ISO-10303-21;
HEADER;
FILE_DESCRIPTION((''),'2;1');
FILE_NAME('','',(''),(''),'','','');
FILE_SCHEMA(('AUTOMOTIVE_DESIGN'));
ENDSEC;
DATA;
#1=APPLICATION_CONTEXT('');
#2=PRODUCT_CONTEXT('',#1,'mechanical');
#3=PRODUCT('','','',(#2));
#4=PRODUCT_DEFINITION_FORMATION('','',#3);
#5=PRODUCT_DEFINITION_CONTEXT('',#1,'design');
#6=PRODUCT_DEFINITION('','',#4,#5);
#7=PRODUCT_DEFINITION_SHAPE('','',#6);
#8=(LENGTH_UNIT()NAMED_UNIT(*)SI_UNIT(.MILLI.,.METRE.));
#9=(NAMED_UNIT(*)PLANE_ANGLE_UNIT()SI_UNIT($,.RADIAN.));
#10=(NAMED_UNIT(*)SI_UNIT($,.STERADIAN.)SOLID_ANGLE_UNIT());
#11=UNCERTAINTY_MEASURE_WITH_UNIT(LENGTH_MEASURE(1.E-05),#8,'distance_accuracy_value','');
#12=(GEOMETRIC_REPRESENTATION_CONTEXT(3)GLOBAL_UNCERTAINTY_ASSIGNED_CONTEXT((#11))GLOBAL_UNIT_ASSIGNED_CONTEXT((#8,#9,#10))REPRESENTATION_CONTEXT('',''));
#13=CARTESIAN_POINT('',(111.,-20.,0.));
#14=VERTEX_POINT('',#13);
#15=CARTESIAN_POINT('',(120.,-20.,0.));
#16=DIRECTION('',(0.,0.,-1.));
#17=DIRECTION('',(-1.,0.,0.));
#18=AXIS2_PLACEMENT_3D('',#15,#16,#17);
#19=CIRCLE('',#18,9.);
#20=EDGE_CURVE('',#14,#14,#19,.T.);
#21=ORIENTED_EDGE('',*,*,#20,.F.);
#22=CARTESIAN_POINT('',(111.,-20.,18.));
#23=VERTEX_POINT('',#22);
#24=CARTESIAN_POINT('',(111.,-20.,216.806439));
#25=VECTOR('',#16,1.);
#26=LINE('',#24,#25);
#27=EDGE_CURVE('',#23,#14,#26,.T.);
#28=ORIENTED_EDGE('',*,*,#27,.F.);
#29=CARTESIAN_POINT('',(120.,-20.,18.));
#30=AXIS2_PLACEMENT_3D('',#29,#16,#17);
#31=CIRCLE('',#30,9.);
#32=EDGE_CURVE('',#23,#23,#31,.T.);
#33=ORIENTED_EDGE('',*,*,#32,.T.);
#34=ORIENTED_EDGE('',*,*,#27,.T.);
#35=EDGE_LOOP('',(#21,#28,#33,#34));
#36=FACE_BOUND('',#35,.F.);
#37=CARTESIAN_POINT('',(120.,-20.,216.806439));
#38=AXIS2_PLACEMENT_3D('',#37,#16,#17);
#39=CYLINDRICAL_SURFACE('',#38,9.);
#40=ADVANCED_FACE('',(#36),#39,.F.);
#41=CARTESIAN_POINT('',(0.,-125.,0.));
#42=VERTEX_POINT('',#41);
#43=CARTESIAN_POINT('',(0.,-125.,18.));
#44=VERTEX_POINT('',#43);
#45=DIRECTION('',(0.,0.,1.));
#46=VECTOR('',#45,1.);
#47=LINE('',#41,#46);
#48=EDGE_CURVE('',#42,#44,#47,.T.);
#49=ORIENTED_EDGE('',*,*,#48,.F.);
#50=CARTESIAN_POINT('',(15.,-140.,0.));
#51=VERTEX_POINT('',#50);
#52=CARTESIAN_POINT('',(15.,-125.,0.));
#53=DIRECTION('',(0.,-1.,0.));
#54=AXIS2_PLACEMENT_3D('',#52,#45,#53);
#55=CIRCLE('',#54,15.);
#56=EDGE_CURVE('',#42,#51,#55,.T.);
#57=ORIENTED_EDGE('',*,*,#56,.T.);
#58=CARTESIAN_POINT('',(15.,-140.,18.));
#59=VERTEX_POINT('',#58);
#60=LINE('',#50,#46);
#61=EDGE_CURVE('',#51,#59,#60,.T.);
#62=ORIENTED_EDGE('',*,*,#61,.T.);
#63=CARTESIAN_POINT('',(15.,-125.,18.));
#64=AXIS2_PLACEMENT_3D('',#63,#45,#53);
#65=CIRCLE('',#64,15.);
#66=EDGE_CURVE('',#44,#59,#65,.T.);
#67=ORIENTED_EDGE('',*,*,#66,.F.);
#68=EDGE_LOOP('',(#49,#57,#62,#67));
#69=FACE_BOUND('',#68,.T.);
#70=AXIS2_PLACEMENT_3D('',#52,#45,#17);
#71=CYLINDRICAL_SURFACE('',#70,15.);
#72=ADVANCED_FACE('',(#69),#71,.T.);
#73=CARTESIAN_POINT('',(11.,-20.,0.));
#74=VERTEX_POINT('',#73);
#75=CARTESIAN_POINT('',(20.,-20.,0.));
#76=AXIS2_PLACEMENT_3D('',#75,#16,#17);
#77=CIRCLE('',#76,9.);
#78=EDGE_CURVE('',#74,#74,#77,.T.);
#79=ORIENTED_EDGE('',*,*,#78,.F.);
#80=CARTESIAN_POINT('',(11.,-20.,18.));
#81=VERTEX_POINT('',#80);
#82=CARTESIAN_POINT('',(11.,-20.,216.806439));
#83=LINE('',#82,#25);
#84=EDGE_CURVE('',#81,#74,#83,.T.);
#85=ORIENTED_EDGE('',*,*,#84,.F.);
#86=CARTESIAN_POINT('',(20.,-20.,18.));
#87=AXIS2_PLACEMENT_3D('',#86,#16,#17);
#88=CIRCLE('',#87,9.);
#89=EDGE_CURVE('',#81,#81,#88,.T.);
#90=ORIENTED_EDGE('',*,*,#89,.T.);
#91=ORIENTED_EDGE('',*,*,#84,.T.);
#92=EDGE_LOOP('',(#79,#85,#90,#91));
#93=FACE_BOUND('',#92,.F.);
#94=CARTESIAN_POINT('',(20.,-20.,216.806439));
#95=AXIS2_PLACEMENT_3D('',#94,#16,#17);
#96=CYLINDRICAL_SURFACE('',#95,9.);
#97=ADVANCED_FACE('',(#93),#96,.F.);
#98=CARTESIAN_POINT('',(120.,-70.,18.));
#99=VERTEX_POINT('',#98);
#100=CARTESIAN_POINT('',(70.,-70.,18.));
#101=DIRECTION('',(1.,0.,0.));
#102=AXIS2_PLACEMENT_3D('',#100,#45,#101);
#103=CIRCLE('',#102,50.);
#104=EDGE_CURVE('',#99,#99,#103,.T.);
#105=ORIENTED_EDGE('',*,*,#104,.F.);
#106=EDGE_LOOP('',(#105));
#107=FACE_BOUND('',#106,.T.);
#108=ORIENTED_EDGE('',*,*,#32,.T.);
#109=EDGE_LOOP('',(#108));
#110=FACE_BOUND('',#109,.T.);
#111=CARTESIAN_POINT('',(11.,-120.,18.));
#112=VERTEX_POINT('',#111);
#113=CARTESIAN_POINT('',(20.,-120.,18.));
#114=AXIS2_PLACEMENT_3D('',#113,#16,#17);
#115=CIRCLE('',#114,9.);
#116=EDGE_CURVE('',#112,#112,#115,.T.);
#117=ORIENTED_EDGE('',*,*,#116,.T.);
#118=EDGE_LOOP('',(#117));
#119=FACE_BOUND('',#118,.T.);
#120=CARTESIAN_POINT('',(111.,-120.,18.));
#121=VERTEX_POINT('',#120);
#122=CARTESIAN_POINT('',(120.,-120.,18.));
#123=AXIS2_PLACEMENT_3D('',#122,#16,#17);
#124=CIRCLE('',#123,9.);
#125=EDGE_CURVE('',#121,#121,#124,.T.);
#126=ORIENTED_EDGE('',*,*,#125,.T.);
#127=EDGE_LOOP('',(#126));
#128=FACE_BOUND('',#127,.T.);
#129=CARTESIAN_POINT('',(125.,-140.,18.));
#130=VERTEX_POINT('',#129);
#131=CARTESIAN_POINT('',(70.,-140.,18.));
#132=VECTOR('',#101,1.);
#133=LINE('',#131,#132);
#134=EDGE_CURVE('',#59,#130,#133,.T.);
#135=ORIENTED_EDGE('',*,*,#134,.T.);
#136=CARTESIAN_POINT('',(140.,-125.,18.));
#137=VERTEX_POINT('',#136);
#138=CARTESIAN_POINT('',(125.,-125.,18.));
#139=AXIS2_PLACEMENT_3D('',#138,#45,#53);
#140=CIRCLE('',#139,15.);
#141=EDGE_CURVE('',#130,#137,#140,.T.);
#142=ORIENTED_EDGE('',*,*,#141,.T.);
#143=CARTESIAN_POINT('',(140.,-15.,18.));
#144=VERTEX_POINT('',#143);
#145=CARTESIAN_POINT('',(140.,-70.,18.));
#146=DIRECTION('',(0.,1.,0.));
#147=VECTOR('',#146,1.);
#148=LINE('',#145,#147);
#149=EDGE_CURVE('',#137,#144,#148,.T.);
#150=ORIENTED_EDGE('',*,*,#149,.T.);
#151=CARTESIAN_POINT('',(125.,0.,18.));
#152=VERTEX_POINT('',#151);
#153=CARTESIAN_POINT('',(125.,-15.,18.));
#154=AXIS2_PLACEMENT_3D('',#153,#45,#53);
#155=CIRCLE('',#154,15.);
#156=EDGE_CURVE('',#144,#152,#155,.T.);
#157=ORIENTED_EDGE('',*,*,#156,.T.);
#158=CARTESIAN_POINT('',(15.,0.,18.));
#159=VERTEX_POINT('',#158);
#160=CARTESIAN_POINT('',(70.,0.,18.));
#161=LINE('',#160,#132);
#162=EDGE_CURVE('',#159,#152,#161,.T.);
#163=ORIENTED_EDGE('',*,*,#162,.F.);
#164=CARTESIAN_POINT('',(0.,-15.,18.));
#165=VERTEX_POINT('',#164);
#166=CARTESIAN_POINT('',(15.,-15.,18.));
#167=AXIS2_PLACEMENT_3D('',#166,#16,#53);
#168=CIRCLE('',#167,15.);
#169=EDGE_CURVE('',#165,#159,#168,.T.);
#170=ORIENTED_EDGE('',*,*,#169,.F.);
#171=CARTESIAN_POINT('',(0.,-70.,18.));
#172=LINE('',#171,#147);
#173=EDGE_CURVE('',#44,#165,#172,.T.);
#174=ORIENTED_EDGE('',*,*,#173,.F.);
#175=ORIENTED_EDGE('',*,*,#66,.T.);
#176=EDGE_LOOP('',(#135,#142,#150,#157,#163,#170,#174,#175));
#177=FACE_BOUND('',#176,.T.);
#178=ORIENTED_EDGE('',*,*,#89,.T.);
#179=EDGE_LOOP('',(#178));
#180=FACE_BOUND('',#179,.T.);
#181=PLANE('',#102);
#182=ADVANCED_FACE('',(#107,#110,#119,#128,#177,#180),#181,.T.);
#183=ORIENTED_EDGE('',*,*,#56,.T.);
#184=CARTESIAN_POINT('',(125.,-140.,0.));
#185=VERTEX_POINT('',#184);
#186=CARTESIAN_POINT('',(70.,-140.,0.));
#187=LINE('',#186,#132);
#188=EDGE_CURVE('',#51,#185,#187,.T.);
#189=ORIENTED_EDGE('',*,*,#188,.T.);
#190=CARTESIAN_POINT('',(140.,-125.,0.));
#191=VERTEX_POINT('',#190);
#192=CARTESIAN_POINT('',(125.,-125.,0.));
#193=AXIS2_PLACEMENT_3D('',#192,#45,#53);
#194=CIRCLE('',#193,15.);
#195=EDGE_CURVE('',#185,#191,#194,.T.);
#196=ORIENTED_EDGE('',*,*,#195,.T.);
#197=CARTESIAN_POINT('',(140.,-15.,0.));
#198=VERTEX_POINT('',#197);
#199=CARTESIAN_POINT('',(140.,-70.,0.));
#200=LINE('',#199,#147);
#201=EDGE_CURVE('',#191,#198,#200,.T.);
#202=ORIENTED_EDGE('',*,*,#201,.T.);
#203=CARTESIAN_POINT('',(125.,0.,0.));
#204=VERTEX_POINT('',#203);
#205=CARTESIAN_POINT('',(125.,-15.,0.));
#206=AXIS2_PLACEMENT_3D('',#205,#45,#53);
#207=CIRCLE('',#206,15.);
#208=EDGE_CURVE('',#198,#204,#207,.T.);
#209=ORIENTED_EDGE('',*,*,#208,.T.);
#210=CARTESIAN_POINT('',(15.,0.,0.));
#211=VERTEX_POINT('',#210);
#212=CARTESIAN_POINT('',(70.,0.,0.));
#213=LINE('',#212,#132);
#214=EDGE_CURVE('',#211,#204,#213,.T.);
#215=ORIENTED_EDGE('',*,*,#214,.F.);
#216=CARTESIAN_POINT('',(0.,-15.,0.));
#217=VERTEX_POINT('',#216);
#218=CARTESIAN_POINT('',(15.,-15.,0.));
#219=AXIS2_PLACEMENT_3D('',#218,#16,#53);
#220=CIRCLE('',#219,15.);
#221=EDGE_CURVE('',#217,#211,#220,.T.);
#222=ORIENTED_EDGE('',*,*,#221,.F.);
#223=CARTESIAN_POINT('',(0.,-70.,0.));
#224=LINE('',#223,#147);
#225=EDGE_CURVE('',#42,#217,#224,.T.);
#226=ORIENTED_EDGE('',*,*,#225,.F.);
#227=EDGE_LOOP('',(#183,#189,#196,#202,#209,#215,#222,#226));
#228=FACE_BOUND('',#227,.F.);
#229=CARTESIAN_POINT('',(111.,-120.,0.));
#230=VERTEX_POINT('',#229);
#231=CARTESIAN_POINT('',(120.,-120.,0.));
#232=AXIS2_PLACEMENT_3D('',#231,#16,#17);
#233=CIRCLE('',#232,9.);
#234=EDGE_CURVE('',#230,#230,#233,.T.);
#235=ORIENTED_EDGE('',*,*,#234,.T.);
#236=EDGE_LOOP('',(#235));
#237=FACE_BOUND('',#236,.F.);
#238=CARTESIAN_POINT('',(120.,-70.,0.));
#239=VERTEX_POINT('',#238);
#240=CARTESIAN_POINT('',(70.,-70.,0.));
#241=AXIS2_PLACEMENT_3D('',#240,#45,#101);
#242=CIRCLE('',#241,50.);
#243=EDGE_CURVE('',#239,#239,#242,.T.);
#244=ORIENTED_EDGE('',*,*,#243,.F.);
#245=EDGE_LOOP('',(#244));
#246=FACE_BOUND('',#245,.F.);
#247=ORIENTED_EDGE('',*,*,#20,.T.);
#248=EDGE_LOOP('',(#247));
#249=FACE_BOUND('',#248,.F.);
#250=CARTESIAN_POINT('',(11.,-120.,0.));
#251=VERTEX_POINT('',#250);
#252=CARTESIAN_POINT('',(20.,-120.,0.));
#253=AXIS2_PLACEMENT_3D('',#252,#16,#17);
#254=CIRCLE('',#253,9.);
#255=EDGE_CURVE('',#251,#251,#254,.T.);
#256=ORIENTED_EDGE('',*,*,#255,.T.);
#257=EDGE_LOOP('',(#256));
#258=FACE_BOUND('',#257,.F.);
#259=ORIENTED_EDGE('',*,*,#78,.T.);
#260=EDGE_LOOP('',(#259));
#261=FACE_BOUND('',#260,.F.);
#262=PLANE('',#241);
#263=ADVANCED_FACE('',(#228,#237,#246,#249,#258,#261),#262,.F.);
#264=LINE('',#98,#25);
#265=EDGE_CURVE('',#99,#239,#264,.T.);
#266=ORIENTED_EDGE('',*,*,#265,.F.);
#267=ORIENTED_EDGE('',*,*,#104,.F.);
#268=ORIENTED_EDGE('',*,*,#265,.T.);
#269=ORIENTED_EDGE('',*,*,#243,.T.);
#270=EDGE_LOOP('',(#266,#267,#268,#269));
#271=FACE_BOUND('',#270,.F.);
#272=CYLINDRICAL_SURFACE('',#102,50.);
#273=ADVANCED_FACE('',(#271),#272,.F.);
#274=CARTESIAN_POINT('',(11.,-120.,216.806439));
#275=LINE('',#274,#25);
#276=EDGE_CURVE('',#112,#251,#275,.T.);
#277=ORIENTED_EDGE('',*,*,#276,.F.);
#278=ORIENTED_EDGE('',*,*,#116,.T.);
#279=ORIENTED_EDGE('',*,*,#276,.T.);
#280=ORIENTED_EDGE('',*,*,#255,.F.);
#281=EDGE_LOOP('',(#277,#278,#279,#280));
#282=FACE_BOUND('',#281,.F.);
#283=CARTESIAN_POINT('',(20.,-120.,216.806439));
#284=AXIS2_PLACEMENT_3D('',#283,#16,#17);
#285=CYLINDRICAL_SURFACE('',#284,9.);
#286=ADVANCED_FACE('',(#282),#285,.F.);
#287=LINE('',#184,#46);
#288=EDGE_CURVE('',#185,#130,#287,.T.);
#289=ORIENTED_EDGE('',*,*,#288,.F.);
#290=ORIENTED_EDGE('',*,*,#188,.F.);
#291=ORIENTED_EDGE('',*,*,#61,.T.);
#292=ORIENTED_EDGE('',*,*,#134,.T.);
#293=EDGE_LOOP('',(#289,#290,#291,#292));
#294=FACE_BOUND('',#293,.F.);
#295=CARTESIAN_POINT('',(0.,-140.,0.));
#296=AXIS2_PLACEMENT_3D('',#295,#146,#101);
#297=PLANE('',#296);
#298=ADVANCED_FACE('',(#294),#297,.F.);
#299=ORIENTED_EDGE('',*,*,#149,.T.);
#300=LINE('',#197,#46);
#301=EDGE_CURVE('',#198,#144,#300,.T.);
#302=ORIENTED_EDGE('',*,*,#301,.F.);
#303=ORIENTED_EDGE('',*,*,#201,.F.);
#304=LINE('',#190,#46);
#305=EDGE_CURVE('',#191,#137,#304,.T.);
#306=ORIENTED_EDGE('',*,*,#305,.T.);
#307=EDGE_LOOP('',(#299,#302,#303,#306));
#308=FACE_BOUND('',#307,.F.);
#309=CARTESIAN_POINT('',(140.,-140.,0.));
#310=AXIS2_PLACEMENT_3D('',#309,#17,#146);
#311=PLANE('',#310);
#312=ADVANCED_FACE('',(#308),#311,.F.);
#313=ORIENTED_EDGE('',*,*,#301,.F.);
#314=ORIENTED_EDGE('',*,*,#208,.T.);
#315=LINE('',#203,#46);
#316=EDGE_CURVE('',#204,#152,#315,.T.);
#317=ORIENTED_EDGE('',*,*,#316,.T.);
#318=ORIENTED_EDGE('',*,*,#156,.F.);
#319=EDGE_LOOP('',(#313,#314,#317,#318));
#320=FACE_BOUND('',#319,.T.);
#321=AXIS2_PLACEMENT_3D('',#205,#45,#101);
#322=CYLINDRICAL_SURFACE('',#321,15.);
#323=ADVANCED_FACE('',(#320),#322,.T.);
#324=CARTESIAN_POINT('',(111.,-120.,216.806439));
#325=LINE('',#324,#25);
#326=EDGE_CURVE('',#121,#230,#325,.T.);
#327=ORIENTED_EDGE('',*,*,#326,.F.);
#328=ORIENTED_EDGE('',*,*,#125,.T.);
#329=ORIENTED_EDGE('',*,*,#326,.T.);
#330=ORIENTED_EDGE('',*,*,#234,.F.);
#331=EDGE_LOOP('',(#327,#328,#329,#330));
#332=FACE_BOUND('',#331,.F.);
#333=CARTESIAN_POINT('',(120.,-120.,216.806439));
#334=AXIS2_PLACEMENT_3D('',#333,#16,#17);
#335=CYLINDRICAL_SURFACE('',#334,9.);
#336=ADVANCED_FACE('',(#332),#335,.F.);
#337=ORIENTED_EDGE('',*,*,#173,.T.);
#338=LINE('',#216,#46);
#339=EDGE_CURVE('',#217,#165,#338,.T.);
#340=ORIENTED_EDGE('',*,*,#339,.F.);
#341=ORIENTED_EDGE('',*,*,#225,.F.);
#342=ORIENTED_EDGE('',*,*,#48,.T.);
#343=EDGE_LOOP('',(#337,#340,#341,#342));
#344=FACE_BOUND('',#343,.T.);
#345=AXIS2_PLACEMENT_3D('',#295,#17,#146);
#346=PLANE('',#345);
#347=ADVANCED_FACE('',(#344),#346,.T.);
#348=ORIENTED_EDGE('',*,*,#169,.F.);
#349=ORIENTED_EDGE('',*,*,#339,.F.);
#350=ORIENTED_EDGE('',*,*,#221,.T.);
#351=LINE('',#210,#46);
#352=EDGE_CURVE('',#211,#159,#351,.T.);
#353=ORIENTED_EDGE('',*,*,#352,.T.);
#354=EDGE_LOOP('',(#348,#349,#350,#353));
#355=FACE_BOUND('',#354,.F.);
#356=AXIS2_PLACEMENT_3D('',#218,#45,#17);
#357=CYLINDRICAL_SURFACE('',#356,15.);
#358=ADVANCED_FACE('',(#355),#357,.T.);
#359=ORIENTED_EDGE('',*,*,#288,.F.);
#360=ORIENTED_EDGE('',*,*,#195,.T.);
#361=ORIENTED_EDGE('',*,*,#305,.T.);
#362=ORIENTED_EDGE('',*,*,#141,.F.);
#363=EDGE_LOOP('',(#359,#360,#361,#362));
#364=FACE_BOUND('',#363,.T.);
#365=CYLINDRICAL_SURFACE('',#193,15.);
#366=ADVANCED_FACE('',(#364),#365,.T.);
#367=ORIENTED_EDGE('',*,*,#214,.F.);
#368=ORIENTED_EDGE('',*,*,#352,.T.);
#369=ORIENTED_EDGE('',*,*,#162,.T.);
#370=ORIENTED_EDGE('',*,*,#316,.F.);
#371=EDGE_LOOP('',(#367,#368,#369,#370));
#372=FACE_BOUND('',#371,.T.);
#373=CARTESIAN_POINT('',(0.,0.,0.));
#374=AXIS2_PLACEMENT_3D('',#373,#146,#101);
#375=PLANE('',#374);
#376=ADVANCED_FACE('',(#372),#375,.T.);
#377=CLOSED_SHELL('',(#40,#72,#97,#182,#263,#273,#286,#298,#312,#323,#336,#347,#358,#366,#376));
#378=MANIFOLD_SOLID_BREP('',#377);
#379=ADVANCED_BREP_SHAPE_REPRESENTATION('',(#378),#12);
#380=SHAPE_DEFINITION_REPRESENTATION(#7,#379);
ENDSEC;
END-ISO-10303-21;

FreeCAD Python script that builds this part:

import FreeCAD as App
import Part
import Sketcher


def edges_at(feature, points):
    """Names of the edges that pass closest to the given points."""
    edges = feature.Shape.Edges
    near = lambda p: min(range(len(edges)), key=lambda i: edges[i].distToShape(Part.Vertex(*p))[0])
    return sorted({f"Edge{near(p) + 1}" for p in points})

doc = App.newDocument("Part")
body = doc.addObject("PartDesign::Body", "Body")

# Sketch on XY plane
sketch1 = doc.addObject("Sketcher::SketchObject", "Sketch")
body.addObject(sketch1)
sketch1.AttachmentSupport = (doc.XY_Plane, [""])
sketch1.MapMode = "FlatFace"
sketch1.addGeometry([
    Part.LineSegment(App.Vector(0, 0, 0), App.Vector(0, -140, 0)),
    Part.LineSegment(App.Vector(0, -140, 0), App.Vector(140, -140, 0)),
    Part.LineSegment(App.Vector(140, -140, 0), App.Vector(140, 0, 0)),
    Part.LineSegment(App.Vector(140, 0, 0), App.Vector(0, 0, 0)),
], False)
sketch1.addConstraint([
    Sketcher.Constraint("Coincident", 0, 2, 1, 1),
    Sketcher.Constraint("Coincident", 1, 2, 2, 1),
    Sketcher.Constraint("Coincident", 2, 2, 3, 1),
    Sketcher.Constraint("Coincident", 3, 2, 0, 1),
    Sketcher.Constraint("Vertical", 0),
    Sketcher.Constraint("Horizontal", 1),
    Sketcher.Constraint("Vertical", 2),
    Sketcher.Constraint("Horizontal", 3),
    Sketcher.Constraint("Coincident", 3, 2, -1, 1),
    Sketcher.Constraint("Equal", 3, 0),
    Sketcher.Constraint("DistanceX", 1, 1, 1, 2, 140.0),
])
pad1 = doc.addObject("PartDesign::Pad", "Pad")
body.addObject(pad1)
pad1.Profile = sketch1
pad1.Length = 18
doc.recompute()

fillet = doc.addObject("PartDesign::Fillet", "Fillet")
body.addObject(fillet)
fillet.Base = (pad1, edges_at(pad1, [
    (0, -140, 9),
    (140, -140, 9),
    (140, 0, 9),
    (0, 0, 9),
]))
fillet.Radius = 15

# Sketch on XY plane
sketch2 = doc.addObject("Sketcher::SketchObject", "Sketch001")
body.addObject(sketch2)
sketch2.AttachmentSupport = (doc.XY_Plane, [""])
sketch2.MapMode = "FlatFace"
sketch2.AttachmentOffset = App.Placement(App.Vector(0, 0, 18), App.Rotation())
sketch2.addGeometry([
    Part.Circle(App.Vector(120, -120, 0), App.Vector(0, 0, 1), 9),
    Part.Circle(App.Vector(20, -120, 0), App.Vector(0, 0, 1), 9),
    Part.Circle(App.Vector(20, -20, 0), App.Vector(0, 0, 1), 9),
    Part.Circle(App.Vector(120, -20, 0), App.Vector(0, 0, 1), 9),
], False)
sketch2.addConstraint([
    Sketcher.Constraint("Equal", 0, 1),
    Sketcher.Constraint("Equal", 1, 2),
    Sketcher.Constraint("Equal", 2, 3),
    Sketcher.Constraint("Horizontal", 0, 3, 1, 3),
    Sketcher.Constraint("Horizontal", 2, 3, 3, 3),
    Sketcher.Constraint("Vertical", 1, 3, 2, 3),
    Sketcher.Constraint("Vertical", 0, 3, 3, 3),
    Sketcher.Constraint("Diameter", 0, 18.0),
    Sketcher.Constraint("DistanceX", -1, 1, 0, 3, 120.0),
    Sketcher.Constraint("DistanceY", 0, 3, -1, 1, 120.0),
    Sketcher.Constraint("DistanceX", -1, 1, 1, 3, 20.0),
    Sketcher.Constraint("DistanceY", 2, 3, -1, 1, 20.0),
])
doc.recompute()
hole = doc.addObject("PartDesign::Hole", "Hole")
body.addObject(hole)
hole.Profile = sketch2
hole.ThreadType = "None"
hole.Diameter = 18
hole.DepthType = "ThroughAll"

# Sketch on XY plane
sketch3 = doc.addObject("Sketcher::SketchObject", "Sketch002")
body.addObject(sketch3)
sketch3.AttachmentSupport = (doc.XY_Plane, [""])
sketch3.MapMode = "FlatFace"
sketch3.AttachmentOffset = App.Placement(App.Vector(0, 0, 18), App.Rotation())
sketch3.addGeometry(Part.Circle(App.Vector(70, -70, 0), App.Vector(0, 0, 1), 50), False)
sketch3.addConstraint([
    Sketcher.Constraint("Diameter", 0, 100.0),
    Sketcher.Constraint("DistanceX", -1, 1, 0, 3, 70.0),
    Sketcher.Constraint("DistanceY", 0, 3, -1, 1, 70.0),
])
pocket1 = doc.addObject("PartDesign::Pocket", "Pocket")
body.addObject(pocket1)
pocket1.Profile = sketch3
pocket1.Type = "ThroughAll"

doc.recompute()
